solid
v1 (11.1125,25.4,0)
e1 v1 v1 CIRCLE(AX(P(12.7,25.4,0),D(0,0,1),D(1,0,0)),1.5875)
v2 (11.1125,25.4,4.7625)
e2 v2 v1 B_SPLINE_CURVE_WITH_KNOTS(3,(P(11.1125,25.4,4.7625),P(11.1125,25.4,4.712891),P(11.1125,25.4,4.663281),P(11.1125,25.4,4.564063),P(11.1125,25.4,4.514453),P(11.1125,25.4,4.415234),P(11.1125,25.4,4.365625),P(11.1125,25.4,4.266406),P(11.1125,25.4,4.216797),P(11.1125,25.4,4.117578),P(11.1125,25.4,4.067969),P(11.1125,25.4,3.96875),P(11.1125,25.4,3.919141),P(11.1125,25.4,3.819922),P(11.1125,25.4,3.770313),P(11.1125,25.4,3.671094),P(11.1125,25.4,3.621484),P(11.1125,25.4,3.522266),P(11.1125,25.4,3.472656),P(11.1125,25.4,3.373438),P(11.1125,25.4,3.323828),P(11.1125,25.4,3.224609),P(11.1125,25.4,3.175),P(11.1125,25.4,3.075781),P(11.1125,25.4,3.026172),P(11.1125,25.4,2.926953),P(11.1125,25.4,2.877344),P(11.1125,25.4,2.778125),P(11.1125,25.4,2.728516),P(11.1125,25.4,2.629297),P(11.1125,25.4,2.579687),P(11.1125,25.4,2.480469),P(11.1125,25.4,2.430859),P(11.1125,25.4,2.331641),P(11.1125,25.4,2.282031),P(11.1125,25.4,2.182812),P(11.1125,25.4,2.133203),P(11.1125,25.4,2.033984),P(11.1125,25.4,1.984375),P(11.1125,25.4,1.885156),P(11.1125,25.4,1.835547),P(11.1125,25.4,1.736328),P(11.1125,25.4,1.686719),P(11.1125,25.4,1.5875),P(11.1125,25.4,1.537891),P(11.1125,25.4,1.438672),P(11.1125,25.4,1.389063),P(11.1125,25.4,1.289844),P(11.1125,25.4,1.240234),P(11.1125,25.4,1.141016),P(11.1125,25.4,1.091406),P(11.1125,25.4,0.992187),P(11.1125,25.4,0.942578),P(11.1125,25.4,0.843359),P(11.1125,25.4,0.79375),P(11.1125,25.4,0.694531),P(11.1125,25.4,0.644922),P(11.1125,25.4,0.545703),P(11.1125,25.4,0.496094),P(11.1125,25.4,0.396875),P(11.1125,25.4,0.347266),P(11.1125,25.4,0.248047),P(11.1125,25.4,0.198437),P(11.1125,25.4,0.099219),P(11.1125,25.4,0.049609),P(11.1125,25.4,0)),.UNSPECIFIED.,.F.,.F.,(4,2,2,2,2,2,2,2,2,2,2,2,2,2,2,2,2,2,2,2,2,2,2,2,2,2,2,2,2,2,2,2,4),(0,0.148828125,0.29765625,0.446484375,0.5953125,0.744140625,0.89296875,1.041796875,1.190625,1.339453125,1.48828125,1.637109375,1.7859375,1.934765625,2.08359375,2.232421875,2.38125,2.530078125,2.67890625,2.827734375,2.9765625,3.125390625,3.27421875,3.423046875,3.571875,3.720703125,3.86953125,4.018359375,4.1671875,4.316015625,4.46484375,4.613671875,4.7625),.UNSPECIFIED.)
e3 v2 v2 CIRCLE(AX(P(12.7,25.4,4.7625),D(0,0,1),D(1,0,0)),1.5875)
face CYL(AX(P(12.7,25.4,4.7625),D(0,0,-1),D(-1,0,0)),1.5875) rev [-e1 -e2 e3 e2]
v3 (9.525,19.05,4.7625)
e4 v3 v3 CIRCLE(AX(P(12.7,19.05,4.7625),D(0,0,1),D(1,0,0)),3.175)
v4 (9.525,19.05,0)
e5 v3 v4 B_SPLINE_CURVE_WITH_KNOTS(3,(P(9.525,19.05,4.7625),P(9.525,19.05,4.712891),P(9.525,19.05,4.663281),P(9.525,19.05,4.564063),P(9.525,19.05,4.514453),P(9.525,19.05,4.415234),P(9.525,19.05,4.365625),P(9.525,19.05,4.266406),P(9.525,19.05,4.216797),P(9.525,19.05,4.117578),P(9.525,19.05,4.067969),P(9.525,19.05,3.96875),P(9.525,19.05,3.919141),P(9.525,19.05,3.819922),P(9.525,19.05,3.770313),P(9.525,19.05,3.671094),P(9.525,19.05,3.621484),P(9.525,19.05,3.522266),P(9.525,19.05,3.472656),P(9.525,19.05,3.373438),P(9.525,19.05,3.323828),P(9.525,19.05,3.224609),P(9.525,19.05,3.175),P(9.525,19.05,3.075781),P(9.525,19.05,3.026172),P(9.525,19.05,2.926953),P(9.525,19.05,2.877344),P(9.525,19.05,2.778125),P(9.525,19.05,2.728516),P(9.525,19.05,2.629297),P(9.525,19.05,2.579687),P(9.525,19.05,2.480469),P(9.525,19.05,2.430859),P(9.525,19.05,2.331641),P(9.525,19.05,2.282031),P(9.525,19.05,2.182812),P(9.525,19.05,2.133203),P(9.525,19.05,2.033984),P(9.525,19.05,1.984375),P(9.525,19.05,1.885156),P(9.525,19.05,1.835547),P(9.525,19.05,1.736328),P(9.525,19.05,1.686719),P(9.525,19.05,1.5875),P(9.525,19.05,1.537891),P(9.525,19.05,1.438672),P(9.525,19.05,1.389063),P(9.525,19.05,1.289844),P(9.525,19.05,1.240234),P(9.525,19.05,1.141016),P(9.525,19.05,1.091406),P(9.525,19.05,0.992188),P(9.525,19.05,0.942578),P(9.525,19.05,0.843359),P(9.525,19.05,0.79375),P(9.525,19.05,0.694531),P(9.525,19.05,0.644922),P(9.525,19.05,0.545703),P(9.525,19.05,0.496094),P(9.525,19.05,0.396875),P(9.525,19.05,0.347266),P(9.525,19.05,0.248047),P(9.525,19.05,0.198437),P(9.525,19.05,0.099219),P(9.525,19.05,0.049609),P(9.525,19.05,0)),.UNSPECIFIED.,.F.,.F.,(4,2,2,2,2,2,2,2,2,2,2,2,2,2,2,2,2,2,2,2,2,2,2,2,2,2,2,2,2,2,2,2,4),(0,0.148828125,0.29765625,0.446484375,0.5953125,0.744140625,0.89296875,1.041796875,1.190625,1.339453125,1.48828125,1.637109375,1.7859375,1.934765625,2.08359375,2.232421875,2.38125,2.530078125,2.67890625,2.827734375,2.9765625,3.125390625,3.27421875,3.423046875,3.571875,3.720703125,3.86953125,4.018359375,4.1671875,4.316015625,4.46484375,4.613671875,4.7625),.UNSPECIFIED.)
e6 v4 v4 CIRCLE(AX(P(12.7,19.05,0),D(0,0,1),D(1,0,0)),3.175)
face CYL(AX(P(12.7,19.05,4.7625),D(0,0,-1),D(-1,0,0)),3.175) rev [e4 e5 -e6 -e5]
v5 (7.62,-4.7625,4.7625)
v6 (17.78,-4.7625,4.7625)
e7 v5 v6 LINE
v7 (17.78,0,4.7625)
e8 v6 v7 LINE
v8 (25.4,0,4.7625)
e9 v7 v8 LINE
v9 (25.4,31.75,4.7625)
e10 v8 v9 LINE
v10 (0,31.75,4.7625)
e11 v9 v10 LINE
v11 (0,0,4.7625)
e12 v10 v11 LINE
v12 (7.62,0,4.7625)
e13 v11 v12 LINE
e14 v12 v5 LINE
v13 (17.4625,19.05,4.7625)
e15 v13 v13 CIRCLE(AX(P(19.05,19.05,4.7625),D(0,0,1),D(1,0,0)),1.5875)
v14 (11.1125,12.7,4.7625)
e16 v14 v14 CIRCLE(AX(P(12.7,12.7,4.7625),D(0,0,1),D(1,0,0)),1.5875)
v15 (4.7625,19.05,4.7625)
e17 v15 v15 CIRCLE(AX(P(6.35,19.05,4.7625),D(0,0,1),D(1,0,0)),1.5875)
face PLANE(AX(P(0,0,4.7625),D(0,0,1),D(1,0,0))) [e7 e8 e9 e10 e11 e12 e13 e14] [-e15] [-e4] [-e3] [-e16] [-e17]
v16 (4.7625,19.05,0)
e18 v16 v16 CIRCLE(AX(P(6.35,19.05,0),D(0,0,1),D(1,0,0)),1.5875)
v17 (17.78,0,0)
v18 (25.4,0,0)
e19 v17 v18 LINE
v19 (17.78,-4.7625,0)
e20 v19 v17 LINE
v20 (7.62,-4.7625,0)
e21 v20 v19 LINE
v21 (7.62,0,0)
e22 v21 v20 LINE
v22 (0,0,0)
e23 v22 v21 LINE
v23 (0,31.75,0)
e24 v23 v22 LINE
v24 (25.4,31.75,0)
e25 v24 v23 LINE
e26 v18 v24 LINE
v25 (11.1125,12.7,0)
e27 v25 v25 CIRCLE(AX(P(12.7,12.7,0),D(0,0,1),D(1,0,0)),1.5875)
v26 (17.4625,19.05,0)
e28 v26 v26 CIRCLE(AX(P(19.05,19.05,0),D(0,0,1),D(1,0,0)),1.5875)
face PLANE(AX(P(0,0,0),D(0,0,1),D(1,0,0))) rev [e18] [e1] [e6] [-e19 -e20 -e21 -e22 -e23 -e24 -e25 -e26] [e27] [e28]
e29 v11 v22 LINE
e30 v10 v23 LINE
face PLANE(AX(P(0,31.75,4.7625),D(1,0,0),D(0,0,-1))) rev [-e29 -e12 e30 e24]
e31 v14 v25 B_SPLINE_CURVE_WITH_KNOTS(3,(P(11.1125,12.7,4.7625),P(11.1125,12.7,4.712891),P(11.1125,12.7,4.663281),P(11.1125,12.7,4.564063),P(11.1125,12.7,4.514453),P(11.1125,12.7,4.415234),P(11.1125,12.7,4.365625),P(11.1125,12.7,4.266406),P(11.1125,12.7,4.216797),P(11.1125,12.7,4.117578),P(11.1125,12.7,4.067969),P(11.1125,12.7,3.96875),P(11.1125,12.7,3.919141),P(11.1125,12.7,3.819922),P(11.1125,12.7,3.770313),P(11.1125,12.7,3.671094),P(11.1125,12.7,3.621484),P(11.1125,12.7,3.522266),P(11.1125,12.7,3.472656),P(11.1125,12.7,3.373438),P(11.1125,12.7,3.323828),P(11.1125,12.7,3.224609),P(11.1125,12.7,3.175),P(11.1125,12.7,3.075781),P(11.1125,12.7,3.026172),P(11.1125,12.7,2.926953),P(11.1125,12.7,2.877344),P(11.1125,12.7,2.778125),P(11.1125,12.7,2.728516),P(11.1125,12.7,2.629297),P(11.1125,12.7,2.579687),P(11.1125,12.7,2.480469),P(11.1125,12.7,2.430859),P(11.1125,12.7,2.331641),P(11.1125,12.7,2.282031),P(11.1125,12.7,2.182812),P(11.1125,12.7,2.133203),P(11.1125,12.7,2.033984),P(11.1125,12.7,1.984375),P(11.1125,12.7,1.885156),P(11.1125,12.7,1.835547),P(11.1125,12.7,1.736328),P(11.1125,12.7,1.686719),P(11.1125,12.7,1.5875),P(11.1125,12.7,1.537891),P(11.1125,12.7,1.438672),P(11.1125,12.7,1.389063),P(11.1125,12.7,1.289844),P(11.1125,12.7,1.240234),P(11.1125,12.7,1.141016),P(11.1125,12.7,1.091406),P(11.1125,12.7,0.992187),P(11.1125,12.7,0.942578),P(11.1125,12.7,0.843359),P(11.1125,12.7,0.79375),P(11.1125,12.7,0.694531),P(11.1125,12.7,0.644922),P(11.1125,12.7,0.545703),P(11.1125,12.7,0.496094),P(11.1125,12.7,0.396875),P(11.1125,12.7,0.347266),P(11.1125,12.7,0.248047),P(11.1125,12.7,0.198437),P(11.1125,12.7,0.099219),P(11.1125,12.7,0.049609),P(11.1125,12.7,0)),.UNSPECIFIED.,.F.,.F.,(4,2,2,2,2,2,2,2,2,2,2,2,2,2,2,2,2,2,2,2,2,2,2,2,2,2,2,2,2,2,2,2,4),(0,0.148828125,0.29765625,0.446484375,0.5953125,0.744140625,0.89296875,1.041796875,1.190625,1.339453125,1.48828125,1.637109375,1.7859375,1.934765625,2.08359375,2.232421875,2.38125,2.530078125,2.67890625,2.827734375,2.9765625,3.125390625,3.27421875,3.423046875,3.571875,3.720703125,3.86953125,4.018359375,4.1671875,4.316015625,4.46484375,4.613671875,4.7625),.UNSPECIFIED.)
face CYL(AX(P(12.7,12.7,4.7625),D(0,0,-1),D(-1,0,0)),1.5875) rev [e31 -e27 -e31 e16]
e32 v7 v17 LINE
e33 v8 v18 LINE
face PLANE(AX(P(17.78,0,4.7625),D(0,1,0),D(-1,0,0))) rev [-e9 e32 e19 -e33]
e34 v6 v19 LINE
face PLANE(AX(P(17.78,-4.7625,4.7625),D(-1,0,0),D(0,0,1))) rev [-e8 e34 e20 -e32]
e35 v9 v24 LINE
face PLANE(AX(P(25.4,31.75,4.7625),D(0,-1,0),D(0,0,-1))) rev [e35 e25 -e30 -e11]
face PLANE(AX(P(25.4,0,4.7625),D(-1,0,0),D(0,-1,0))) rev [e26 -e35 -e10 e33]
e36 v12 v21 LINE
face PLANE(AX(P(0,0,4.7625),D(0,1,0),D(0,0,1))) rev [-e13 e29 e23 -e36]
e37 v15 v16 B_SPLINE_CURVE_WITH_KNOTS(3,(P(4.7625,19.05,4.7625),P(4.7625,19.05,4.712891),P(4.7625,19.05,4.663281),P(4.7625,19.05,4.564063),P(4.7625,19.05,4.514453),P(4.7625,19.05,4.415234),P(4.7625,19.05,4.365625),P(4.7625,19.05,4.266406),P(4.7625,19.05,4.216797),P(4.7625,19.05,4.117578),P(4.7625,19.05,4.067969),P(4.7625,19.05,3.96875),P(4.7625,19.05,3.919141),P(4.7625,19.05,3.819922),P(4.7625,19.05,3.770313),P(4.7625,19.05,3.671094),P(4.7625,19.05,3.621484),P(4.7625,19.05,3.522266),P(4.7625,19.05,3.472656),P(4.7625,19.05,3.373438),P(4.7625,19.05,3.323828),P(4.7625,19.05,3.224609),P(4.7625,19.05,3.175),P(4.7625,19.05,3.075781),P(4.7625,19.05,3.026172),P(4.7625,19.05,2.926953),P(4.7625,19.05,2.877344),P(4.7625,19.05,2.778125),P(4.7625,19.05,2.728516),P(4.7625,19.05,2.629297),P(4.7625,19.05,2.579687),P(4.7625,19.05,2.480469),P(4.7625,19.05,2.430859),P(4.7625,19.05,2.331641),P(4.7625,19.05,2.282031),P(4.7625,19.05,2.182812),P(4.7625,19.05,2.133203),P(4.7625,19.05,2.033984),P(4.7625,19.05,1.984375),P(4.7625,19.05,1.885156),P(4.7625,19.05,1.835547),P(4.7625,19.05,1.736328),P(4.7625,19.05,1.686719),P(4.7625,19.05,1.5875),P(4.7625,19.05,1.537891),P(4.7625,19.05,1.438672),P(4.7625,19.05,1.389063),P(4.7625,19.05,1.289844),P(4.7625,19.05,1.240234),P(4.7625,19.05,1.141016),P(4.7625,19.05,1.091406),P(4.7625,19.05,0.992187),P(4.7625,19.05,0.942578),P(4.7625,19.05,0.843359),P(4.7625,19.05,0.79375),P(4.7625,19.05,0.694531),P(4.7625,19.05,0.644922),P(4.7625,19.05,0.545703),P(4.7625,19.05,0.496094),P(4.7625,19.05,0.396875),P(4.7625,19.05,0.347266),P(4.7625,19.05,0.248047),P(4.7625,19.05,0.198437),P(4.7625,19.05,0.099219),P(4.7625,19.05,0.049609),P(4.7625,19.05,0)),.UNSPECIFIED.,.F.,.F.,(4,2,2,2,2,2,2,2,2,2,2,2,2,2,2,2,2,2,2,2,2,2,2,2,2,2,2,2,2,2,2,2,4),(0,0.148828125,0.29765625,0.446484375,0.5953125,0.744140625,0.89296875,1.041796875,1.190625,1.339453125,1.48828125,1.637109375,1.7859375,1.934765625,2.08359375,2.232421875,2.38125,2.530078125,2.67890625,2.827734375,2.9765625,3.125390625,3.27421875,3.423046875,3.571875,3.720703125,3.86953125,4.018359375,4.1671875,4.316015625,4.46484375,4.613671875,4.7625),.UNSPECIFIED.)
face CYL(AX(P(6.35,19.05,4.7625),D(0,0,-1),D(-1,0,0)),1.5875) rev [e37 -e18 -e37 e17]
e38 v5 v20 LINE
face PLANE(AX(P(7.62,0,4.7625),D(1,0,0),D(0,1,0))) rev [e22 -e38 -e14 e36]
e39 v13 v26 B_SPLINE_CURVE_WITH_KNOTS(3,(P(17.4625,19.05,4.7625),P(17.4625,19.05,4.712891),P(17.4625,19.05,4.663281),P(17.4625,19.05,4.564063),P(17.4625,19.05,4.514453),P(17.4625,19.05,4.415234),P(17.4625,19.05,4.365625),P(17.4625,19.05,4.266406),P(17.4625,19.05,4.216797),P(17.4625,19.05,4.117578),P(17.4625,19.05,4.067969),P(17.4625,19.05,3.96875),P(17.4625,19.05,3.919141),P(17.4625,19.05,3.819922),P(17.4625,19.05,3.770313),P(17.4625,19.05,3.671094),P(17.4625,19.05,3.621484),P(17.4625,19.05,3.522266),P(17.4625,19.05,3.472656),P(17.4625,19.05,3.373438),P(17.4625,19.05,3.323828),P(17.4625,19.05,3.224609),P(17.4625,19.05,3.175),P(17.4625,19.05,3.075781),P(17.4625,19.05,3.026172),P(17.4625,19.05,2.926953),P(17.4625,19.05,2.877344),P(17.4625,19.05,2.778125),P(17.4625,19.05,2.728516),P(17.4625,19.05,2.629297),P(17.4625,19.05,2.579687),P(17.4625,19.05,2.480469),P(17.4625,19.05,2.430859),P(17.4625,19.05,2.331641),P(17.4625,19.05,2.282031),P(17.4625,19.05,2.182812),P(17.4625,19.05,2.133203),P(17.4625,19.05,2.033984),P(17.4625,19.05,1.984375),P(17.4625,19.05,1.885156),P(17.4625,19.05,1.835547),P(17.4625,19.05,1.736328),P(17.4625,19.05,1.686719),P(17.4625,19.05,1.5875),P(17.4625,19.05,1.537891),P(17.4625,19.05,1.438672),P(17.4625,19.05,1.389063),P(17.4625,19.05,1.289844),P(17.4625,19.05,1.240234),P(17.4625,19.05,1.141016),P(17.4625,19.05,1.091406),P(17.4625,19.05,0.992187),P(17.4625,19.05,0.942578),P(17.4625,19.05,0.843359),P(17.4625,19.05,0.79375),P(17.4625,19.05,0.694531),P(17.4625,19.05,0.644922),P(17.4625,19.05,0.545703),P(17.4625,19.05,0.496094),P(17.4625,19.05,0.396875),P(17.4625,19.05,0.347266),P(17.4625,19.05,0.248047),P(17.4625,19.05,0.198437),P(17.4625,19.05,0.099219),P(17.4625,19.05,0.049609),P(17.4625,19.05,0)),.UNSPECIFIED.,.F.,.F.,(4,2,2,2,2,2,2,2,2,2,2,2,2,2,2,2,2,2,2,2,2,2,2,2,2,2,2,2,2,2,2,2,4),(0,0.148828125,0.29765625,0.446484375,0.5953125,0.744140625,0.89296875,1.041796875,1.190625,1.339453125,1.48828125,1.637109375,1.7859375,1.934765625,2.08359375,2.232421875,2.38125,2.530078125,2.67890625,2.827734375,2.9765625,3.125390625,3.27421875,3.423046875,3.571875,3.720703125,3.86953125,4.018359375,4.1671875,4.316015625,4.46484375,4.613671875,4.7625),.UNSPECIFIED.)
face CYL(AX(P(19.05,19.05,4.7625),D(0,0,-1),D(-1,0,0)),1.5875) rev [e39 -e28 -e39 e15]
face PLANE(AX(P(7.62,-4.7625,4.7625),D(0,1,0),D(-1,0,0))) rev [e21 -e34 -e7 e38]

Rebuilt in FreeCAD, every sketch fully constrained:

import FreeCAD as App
import Part
import Sketcher
Q = App.Units.Quantity

doc = App.newDocument("Part")
params = doc.addObject("Spreadsheet::Sheet", "Params")
for row, (alias, value) in enumerate([
    ("sketch1_diameter", "0.25 in"),
    ("sketch1_width", "1 in"),
    ("sketch1_diameter2", "0.125 in"),
    ("sketch1_width2", "0.3 in"),
    ("sketch1_height", "1.25 in"),
    ("pad1_length", "0.1875 in"),
], start=1):
    params.set(f"A{row}", alias)
    params.set(f"B{row}", "=" + value)
    params.setAlias(f"B{row}", alias)

body = doc.addObject("PartDesign::Body", "Body")

# Sketch on XY plane
sketch1 = body.newObject("Sketcher::SketchObject", "Sketch")
sketch1.AttachmentSupport = (doc.getObject("XY_Plane"), [""])
sketch1.MapMode = "FlatFace"
sketch1.addGeometry([
    Part.LineSegment(App.Vector(25.4, 0, 0), App.Vector(25.4, 31.75, 0)),  # 0
    Part.LineSegment(App.Vector(25.4, 31.75, 0), App.Vector(0, 31.75, 0)),  # 1
    Part.LineSegment(App.Vector(0, 31.75, 0), App.Vector(0, 0, 0)),  # 2
    Part.LineSegment(App.Vector(0, 0, 0), App.Vector(7.62, 0, 0)),  # 3
    Part.LineSegment(App.Vector(7.62, 0, 0), App.Vector(7.62, -4.7625, 0)),  # 4
    Part.LineSegment(App.Vector(7.62, -4.7625, 0), App.Vector(17.78, -4.7625, 0)),  # 5
    Part.LineSegment(App.Vector(17.78, -4.7625, 0), App.Vector(17.78, 0, 0)),  # 6
    Part.LineSegment(App.Vector(17.78, 0, 0), App.Vector(25.4, 0, 0)),  # 7
    Part.Circle(App.Vector(12.7, 12.7, 0), App.Vector(0, 0, 1), 1.5875),  # 8
    Part.Circle(App.Vector(6.35, 19.05, 0), App.Vector(0, 0, 1), 1.5875),  # 9
    Part.Circle(App.Vector(12.7, 19.05, 0), App.Vector(0, 0, 1), 3.175),  # 10
    Part.Circle(App.Vector(19.05, 19.05, 0), App.Vector(0, 0, 1), 1.5875),  # 11
    Part.Circle(App.Vector(12.7, 25.4, 0), App.Vector(0, 0, 1), 1.5875),  # 12
], False)
sketch1.addConstraint([
    Sketcher.Constraint("Coincident", 0, 2, 1, 1),
    Sketcher.Constraint("Coincident", 1, 2, 2, 1),
    Sketcher.Constraint("Coincident", 2, 2, 3, 1),
    Sketcher.Constraint("Coincident", 3, 2, 4, 1),
    Sketcher.Constraint("Coincident", 4, 2, 5, 1),
    Sketcher.Constraint("Coincident", 5, 2, 6, 1),
    Sketcher.Constraint("Coincident", 6, 2, 7, 1),
    Sketcher.Constraint("Coincident", 7, 2, 0, 1),
    Sketcher.Constraint("Vertical", 0),
    Sketcher.Constraint("Horizontal", 1),
    Sketcher.Constraint("Vertical", 2),
    Sketcher.Constraint("Horizontal", 3),
    Sketcher.Constraint("Vertical", 4),
    Sketcher.Constraint("Horizontal", 5),
    Sketcher.Constraint("Vertical", 6),
    Sketcher.Constraint("Horizontal", 7),
    Sketcher.Constraint("Coincident", 2, 2, -1, 1),
    Sketcher.Constraint("Equal", 8, 9),
    Sketcher.Constraint("Equal", 9, 11),
    Sketcher.Constraint("Equal", 11, 12),
    Sketcher.Constraint("PointOnObject", 6, 2, -1),
    Sketcher.Constraint("Horizontal", 9, 3, 10, 3),
    Sketcher.Constraint("Horizontal", 10, 3, 11, 3),
    Sketcher.Constraint("Vertical", 8, 3, 10, 3),
    Sketcher.Constraint("Vertical", 10, 3, 12, 3),
    Sketcher.Constraint("Equal", 3, 7),
    Sketcher.Constraint("Diameter", 10, Q("0.25 in")),
    Sketcher.Constraint("DistanceX", 1, 2, 1, 1, Q("1 in")),
    Sketcher.Constraint("Diameter", 8, Q("0.125 in")),
    Sketcher.Constraint("DistanceX", 3, 1, 3, 2, Q("0.3 in")),
    Sketcher.Constraint("DistanceY", -1, 1, 12, 3, Q("1 in")),
    Sketcher.Constraint("DistanceY", 0, 1, 0, 2, Q("1.25 in")),
    Sketcher.Constraint("DistanceX", -1, 1, 8, 3, Q("0.5 in")),
    Sketcher.Constraint("DistanceY", -1, 1, 8, 3, Q("0.5 in")),
    Sketcher.Constraint("DistanceX", 9, 3, 11, 3, Q("0.5 in")),
    Sketcher.Constraint("DistanceY", 11, 3, 0, 2, Q("0.5 in")),
    Sketcher.Constraint("DistanceY", 4, 2, 4, 1, Q("0.1875 in")),
    Sketcher.Constraint("DistanceX", -1, 1, 9, 3, Q("0.25 in")),
])
sketch1.setExpression("Constraints[26]", "Params.sketch1_diameter")
sketch1.setExpression("Constraints[27]", "Params.sketch1_width")
sketch1.setExpression("Constraints[28]", "Params.sketch1_diameter2")
sketch1.setExpression("Constraints[29]", "Params.sketch1_width2")
sketch1.setExpression("Constraints[31]", "Params.sketch1_height")
pad1 = body.newObject("PartDesign::Pad", "Pad")
pad1.Profile = sketch1
pad1.setExpression("Length", "Params.pad1_length")

doc.recompute()
